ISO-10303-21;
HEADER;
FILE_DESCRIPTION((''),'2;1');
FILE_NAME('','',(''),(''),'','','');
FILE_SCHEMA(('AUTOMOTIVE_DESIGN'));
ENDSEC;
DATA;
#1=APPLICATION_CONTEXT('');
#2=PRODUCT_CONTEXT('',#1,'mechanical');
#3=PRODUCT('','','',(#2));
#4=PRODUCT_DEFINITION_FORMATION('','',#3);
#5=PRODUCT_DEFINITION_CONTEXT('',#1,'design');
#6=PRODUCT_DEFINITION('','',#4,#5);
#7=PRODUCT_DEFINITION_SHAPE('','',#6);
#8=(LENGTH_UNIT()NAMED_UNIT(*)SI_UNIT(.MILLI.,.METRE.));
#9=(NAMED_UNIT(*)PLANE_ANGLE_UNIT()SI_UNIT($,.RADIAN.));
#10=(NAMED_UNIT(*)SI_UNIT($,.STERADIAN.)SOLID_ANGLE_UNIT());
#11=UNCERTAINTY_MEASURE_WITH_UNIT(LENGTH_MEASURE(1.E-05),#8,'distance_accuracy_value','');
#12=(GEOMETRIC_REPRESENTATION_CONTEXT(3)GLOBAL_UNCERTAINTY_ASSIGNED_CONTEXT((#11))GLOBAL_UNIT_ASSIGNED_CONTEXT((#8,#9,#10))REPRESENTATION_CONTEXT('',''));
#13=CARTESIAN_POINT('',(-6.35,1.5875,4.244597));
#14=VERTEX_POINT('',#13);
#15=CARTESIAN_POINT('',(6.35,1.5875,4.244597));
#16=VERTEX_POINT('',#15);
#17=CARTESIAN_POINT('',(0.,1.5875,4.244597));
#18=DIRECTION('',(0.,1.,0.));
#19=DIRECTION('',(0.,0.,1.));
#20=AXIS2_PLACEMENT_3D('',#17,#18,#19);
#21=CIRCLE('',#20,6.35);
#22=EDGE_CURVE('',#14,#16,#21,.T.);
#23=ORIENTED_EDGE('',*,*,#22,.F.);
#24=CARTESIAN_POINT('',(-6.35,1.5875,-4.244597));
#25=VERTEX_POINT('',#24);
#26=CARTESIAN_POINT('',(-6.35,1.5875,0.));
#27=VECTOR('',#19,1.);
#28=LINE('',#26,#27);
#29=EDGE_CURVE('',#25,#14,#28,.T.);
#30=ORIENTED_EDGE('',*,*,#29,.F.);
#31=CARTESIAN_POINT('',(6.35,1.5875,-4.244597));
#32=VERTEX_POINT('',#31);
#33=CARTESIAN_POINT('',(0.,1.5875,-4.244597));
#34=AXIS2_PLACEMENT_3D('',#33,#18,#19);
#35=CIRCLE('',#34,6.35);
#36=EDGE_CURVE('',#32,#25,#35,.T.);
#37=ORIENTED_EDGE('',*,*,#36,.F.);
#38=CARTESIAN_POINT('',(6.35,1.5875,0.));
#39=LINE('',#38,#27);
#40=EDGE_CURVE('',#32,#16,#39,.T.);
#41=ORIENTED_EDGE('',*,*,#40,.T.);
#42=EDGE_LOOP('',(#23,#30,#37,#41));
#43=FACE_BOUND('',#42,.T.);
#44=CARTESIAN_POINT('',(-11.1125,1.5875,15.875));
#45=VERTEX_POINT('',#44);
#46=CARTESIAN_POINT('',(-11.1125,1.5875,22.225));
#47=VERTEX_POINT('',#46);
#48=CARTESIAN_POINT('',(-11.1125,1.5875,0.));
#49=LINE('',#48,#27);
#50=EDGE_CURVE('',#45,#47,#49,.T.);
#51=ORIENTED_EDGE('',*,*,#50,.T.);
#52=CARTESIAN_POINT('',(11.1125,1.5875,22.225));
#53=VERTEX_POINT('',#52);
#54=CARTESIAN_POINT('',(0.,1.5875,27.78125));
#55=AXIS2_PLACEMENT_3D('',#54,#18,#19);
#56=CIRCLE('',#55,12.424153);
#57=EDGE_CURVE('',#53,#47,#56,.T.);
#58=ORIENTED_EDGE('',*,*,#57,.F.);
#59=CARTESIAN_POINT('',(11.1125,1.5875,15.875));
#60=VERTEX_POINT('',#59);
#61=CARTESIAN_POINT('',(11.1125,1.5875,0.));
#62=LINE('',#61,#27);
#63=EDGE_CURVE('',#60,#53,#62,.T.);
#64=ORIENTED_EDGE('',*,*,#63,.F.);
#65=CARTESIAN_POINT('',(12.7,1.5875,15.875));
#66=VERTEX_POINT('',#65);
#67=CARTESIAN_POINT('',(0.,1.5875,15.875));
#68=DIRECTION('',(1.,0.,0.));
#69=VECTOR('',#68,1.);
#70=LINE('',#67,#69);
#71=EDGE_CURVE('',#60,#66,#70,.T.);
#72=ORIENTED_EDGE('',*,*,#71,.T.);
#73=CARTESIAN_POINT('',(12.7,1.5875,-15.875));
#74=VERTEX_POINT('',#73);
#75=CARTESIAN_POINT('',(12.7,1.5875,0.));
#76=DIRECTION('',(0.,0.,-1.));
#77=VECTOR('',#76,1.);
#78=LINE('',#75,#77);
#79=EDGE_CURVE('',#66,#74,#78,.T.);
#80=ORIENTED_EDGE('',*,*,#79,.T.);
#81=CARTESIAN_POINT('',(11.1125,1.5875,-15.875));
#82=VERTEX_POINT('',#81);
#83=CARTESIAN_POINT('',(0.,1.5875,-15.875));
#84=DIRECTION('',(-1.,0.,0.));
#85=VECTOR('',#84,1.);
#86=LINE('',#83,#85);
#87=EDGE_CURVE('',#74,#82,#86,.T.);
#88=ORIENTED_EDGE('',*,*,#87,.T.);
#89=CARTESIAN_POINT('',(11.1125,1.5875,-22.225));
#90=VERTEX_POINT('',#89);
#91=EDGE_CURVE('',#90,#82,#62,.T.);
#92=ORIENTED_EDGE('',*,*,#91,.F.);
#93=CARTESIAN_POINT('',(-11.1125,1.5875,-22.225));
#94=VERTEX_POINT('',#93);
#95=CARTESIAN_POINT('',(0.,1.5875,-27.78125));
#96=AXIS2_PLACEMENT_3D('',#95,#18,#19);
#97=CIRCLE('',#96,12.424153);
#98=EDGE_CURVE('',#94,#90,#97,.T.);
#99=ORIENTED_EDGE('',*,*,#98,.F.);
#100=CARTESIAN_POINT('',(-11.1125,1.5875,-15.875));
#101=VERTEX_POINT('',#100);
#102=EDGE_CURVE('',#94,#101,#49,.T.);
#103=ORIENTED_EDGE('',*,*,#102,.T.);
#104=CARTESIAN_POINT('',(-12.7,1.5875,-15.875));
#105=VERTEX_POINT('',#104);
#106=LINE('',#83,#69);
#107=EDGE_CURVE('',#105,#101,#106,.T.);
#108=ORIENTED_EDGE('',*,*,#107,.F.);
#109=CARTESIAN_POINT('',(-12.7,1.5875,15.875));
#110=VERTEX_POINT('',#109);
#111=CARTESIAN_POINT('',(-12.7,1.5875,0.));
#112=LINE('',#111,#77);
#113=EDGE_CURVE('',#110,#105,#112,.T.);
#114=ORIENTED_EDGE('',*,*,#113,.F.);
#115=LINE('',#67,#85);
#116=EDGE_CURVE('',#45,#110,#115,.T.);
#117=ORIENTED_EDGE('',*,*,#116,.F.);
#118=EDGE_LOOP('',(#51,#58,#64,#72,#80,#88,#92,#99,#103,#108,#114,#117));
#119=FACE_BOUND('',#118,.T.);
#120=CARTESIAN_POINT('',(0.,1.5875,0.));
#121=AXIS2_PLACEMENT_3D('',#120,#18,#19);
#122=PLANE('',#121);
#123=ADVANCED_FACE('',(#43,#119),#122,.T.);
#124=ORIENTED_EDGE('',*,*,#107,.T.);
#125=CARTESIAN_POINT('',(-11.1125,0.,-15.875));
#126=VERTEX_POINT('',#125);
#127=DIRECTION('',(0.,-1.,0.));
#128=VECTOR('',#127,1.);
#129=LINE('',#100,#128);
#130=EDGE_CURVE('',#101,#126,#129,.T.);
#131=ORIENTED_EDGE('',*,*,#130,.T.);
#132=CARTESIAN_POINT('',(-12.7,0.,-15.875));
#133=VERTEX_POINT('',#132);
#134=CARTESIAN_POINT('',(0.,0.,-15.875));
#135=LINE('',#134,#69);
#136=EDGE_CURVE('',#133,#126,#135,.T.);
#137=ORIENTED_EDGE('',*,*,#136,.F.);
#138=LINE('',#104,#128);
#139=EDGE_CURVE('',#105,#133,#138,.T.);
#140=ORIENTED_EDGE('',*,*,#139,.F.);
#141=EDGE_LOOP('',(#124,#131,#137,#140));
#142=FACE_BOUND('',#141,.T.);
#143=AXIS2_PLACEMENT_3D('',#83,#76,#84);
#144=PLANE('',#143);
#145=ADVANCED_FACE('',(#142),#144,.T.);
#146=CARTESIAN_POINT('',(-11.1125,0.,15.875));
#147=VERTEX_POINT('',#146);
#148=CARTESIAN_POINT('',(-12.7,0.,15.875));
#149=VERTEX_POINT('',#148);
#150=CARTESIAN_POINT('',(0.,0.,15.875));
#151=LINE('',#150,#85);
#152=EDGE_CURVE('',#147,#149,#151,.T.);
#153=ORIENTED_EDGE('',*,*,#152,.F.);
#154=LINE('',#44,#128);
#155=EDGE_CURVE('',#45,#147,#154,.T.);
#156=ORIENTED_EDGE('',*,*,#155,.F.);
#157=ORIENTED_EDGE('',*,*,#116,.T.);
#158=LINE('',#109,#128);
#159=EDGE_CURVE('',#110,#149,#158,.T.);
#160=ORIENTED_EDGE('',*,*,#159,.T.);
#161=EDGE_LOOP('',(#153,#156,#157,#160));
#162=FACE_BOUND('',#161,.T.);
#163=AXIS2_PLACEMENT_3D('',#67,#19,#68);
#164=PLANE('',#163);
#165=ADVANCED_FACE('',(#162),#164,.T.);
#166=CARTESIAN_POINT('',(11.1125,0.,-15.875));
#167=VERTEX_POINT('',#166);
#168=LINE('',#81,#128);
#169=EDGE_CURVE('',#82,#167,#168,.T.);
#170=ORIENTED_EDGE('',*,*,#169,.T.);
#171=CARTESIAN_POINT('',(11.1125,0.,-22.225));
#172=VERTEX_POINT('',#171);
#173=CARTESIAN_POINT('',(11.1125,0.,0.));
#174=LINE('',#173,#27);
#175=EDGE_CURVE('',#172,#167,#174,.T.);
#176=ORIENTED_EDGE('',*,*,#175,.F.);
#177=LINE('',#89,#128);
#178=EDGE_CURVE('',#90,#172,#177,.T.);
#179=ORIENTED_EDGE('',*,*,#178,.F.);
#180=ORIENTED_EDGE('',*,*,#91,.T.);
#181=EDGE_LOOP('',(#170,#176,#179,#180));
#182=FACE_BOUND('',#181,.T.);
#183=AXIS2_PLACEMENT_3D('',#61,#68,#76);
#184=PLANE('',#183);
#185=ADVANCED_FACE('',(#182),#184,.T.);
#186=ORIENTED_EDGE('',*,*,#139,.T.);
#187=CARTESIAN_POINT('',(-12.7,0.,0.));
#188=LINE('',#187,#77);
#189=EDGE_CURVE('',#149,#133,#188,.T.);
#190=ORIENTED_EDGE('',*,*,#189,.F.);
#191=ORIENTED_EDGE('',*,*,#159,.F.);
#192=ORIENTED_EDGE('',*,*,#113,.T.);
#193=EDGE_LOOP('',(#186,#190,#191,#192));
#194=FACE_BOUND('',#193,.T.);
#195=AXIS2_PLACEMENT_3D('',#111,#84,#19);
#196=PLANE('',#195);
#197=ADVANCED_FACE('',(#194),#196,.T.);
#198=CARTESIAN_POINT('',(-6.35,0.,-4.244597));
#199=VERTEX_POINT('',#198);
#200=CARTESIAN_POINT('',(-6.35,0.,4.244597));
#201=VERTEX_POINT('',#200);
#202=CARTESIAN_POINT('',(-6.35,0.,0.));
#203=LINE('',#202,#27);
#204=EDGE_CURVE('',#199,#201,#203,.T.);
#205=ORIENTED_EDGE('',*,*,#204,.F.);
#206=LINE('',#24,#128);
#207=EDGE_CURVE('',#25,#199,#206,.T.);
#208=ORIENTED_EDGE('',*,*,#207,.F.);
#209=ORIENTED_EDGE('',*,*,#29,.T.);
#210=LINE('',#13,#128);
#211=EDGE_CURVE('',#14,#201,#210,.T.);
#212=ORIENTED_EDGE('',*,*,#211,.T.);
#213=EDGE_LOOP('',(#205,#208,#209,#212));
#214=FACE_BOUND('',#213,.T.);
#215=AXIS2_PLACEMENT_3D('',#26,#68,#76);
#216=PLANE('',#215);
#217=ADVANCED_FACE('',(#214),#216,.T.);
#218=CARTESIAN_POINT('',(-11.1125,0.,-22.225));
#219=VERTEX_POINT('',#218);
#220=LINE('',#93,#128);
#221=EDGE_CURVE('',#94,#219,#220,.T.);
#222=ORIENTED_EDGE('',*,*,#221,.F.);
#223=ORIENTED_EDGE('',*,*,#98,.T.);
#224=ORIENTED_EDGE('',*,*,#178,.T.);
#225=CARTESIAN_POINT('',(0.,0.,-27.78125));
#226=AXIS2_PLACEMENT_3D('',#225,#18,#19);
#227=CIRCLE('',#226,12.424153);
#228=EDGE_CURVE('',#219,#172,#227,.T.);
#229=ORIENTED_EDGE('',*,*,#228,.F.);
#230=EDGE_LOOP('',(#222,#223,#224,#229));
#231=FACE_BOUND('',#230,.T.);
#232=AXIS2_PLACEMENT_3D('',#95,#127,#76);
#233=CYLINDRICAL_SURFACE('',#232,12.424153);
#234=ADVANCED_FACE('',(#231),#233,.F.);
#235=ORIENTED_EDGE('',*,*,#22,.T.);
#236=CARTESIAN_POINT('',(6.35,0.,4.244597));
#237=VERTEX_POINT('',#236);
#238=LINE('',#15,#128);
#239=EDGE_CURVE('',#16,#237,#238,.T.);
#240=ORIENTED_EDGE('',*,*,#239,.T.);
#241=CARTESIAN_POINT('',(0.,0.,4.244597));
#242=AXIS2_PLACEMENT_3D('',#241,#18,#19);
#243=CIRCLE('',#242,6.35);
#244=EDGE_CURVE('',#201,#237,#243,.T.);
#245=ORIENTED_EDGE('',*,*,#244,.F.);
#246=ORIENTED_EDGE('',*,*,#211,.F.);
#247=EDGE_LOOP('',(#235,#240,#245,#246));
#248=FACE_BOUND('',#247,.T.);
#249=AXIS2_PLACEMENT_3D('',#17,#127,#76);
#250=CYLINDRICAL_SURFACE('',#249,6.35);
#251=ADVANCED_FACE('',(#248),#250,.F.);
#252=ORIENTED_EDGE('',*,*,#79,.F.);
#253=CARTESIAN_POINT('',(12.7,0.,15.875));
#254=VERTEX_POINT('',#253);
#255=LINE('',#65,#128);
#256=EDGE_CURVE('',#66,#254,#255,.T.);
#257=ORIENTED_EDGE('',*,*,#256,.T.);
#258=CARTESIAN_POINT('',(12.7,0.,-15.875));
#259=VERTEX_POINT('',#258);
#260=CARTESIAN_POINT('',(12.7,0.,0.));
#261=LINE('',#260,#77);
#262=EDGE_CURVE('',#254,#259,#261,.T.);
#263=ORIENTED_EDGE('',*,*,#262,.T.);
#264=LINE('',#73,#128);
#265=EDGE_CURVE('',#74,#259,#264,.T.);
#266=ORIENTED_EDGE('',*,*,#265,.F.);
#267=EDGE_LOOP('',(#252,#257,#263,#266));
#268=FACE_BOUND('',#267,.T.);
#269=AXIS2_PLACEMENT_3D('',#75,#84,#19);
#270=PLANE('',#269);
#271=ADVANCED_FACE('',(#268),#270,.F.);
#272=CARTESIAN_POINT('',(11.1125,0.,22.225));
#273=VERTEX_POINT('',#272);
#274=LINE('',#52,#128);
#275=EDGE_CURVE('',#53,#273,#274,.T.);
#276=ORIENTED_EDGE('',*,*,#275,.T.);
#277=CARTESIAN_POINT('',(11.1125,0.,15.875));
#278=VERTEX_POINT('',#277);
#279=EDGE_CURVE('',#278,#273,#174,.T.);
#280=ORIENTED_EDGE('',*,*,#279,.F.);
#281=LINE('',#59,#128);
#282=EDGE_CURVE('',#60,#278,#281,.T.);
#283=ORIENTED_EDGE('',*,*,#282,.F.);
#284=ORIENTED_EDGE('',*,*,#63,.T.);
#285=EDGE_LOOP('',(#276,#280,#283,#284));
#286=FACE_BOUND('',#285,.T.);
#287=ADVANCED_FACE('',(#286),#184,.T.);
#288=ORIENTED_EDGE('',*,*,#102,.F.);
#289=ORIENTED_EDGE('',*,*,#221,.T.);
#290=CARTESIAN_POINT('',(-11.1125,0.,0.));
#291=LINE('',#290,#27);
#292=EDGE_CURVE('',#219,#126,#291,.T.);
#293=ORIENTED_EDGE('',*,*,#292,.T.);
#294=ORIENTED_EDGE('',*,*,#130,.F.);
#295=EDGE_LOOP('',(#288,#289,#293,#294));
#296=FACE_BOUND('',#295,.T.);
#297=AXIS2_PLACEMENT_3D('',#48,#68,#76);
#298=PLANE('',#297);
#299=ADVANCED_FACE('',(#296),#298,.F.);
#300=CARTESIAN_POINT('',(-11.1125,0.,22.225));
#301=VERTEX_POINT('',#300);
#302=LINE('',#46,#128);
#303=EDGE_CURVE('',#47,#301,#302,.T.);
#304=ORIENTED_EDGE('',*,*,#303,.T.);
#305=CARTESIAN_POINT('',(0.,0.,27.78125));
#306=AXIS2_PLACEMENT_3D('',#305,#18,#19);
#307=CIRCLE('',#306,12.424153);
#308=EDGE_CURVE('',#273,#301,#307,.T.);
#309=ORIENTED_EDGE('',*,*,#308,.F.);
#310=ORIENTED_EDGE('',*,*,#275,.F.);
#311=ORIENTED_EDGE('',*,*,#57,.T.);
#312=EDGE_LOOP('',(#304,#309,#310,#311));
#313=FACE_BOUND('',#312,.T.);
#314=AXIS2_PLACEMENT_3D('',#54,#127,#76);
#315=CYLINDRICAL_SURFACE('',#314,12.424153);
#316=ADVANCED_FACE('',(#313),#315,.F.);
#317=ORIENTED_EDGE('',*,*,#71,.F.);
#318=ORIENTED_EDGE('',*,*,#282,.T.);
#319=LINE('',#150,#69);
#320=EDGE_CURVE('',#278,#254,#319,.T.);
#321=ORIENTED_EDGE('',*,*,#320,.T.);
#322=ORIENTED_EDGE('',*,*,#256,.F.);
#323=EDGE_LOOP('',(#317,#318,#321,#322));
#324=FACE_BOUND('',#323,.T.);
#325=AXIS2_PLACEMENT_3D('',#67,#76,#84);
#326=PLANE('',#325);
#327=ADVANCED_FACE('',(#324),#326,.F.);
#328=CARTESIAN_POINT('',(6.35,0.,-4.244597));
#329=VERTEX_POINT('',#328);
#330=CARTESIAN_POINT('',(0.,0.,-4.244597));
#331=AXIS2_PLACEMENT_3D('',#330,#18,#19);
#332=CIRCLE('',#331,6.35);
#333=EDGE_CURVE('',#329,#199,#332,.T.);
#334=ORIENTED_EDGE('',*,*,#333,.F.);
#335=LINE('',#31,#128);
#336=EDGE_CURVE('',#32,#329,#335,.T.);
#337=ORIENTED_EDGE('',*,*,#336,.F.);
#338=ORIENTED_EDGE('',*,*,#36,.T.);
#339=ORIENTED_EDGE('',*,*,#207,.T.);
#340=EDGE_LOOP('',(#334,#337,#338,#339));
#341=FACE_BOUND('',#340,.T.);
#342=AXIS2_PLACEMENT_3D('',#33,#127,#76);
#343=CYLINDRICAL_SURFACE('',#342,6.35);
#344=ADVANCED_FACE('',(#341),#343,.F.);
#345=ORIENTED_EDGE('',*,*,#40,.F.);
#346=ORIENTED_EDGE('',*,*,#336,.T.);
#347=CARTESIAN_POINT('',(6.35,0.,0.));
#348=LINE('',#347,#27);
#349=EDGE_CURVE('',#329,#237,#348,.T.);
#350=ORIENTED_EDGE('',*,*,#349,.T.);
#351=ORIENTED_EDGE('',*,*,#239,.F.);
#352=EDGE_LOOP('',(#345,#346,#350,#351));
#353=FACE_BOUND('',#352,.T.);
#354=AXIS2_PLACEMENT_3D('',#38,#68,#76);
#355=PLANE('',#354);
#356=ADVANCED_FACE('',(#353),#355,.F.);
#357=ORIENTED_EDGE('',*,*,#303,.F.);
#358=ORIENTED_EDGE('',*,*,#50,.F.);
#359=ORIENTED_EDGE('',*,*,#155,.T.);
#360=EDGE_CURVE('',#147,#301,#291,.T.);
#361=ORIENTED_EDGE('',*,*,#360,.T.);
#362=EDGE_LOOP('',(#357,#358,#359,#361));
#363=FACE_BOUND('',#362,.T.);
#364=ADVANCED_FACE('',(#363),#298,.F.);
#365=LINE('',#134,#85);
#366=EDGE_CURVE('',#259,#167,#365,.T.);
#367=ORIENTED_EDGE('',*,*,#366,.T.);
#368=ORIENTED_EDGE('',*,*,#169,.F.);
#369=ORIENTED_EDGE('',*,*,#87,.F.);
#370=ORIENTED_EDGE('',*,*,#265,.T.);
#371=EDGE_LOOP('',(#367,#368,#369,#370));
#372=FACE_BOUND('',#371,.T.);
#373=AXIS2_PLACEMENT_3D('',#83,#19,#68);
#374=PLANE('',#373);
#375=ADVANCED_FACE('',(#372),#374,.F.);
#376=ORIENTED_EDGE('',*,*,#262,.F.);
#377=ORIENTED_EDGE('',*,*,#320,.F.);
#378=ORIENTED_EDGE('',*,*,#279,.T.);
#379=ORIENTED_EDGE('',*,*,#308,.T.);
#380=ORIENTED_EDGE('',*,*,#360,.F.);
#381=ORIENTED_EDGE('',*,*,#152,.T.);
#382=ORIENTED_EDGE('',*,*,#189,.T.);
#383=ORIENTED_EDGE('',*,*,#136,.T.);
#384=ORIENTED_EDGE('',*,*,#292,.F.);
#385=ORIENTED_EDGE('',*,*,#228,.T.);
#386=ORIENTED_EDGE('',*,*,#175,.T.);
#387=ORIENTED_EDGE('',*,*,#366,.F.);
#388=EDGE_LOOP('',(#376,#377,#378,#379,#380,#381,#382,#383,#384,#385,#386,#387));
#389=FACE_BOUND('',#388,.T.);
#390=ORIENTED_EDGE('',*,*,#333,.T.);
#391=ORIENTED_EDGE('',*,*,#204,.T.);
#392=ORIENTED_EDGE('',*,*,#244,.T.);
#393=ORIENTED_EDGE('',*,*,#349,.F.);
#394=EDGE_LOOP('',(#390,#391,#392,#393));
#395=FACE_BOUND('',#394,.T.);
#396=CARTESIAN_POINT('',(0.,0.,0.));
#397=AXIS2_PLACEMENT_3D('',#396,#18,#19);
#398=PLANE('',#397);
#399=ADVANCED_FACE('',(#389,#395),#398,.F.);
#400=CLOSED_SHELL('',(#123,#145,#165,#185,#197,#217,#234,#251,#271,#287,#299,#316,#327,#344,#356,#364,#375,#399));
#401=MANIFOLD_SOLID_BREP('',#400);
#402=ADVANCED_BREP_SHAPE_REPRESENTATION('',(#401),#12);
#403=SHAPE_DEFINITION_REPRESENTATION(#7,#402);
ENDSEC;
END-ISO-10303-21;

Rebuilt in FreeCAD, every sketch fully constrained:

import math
import FreeCAD as App
import Part
import Sketcher
from FreeCAD import Vector
Q = App.Units.Quantity

doc = App.newDocument("Part")
body = doc.addObject("PartDesign::Body", "Body")

# Sketch on XZ plane
sketch1 = doc.addObject("Sketcher::SketchObject", "Sketch")
body.addObject(sketch1)
sketch1.AttachmentSupport = (doc.XZ_Plane, [""])
sketch1.MapMode = "FlatFace"
sketch1.addGeometry([
    Part.LineSegment(Vector(11.1, 22.2, 0), Vector(11.1, 15.9, 0)),  # 0
    Part.LineSegment(Vector(11.1, 15.9, 0), Vector(12.7, 15.9, 0)),  # 1
    Part.LineSegment(Vector(12.7, 15.9, 0), Vector(12.7, -15.9, 0)),  # 2
    Part.LineSegment(Vector(12.7, -15.9, 0), Vector(11.1, -15.9, 0)),  # 3
    Part.LineSegment(Vector(11.1, -15.9, 0), Vector(11.1, -22.2, 0)),  # 4
    Part.ArcOfCircle(Part.Circle(Vector(0, -27.8, 0), Vector(0, 0, 1), 12.4), math.radians(27), math.radians(153)),  # 5
    Part.LineSegment(Vector(-11.1, -22.2, 0), Vector(-11.1, -15.9, 0)),  # 6
    Part.LineSegment(Vector(-11.1, -15.9, 0), Vector(-12.7, -15.9, 0)),  # 7
    Part.LineSegment(Vector(-12.7, -15.9, 0), Vector(-12.7, 15.9, 0)),  # 8
    Part.LineSegment(Vector(-12.7, 15.9, 0), Vector(-11.1, 15.9, 0)),  # 9
    Part.LineSegment(Vector(-11.1, 15.9, 0), Vector(-11.1, 22.2, 0)),  # 10
    Part.ArcOfCircle(Part.Circle(Vector(0, 27.8, 0), Vector(0, 0, 1), 12.4), math.radians(-153), math.radians(-27)),  # 11
    Part.LineSegment(Vector(-6.3, 4.2, 0), Vector(-6.3, -4.2, 0)),  # 12
    Part.ArcOfCircle(Part.Circle(Vector(0, -4.2, 0), Vector(0, 0, 1), 6.3), math.radians(180), math.radians(360)),  # 13
    Part.LineSegment(Vector(6.3, -4.2, 0), Vector(6.3, 4.2, 0)),  # 14
    Part.ArcOfCircle(Part.Circle(Vector(0, 4.2, 0), Vector(0, 0, 1), 6.3), math.radians(0), math.radians(180)),  # 15
], False)
sketch1.addConstraint([
    Sketcher.Constraint("Coincident", 0, 2, 1, 1),
    Sketcher.Constraint("Coincident", 1, 2, 2, 1),
    Sketcher.Constraint("Coincident", 2, 2, 3, 1),
    Sketcher.Constraint("Coincident", 3, 2, 4, 1),
    Sketcher.Constraint("Coincident", 4, 2, 5, 1),
    Sketcher.Constraint("Coincident", 5, 2, 6, 1),
    Sketcher.Constraint("Coincident", 6, 2, 7, 1),
    Sketcher.Constraint("Coincident", 7, 2, 8, 1),
    Sketcher.Constraint("Coincident", 8, 2, 9, 1),
    Sketcher.Constraint("Coincident", 9, 2, 10, 1),
    Sketcher.Constraint("Coincident", 10, 2, 11, 1),
    Sketcher.Constraint("Coincident", 11, 2, 0, 1),
    Sketcher.Constraint("Tangent", 12, 2, 13, 1),
    Sketcher.Constraint("Tangent", 13, 2, 14, 1),
    Sketcher.Constraint("Tangent", 14, 2, 15, 1),
    Sketcher.Constraint("Tangent", 15, 2, 12, 1),
    Sketcher.Constraint("Vertical", 0),
    Sketcher.Constraint("Horizontal", 1),
    Sketcher.Constraint("Vertical", 2),
    Sketcher.Constraint("Horizontal", 3),
    Sketcher.Constraint("Vertical", 4),
    Sketcher.Constraint("Vertical", 6),
    Sketcher.Constraint("Horizontal", 7),
    Sketcher.Constraint("Vertical", 8),
    Sketcher.Constraint("Horizontal", 9),
    Sketcher.Constraint("Vertical", 10),
    Sketcher.Constraint("Vertical", 12),
    Sketcher.Constraint("Vertical", 14),
    Sketcher.Constraint("Equal", 5, 11),
    Sketcher.Constraint("Symmetric", 5, 3, 11, 3, -1, 1),
    Sketcher.Constraint("Symmetric", 13, 3, 15, 3, -1, 1),
    Sketcher.Constraint("Symmetric", 0, 2, 6, 2, -1, 1),
    Sketcher.Constraint("Symmetric", 2, 2, 8, 2, -1, 1),
    Sketcher.Constraint("Symmetric", 4, 2, 5, 2, -2),
    Sketcher.Constraint("Symmetric", 0, 2, 9, 2, -2),
    Sketcher.Constraint("Radius", 13, Q("0.25 in")),
    Sketcher.Constraint("DistanceX", 8, 2, 1, 2, Q("1 in")),
    Sketcher.Constraint("DistanceY", 0, 2, 0, 1, Q("0.25 in")),
    Sketcher.Constraint("DistanceY", 2, 2, 2, 1, Q("1.25 in")),
    Sketcher.Constraint("DistanceX", 1, 1, 1, 2, Q("0.0625 in")),
    Sketcher.Constraint("DistanceY", 5, 3, -1, 1, Q("1.09375 in")),
    Sketcher.Constraint("DistanceY", 12, 2, 12, 1, 8.489195),
])
pad1 = doc.addObject("PartDesign::Pad", "Pad")
body.addObject(pad1)
pad1.Profile = sketch1
pad1.Length = Q("0.0625 in")
pad1.Reversed = True

doc.recompute()
